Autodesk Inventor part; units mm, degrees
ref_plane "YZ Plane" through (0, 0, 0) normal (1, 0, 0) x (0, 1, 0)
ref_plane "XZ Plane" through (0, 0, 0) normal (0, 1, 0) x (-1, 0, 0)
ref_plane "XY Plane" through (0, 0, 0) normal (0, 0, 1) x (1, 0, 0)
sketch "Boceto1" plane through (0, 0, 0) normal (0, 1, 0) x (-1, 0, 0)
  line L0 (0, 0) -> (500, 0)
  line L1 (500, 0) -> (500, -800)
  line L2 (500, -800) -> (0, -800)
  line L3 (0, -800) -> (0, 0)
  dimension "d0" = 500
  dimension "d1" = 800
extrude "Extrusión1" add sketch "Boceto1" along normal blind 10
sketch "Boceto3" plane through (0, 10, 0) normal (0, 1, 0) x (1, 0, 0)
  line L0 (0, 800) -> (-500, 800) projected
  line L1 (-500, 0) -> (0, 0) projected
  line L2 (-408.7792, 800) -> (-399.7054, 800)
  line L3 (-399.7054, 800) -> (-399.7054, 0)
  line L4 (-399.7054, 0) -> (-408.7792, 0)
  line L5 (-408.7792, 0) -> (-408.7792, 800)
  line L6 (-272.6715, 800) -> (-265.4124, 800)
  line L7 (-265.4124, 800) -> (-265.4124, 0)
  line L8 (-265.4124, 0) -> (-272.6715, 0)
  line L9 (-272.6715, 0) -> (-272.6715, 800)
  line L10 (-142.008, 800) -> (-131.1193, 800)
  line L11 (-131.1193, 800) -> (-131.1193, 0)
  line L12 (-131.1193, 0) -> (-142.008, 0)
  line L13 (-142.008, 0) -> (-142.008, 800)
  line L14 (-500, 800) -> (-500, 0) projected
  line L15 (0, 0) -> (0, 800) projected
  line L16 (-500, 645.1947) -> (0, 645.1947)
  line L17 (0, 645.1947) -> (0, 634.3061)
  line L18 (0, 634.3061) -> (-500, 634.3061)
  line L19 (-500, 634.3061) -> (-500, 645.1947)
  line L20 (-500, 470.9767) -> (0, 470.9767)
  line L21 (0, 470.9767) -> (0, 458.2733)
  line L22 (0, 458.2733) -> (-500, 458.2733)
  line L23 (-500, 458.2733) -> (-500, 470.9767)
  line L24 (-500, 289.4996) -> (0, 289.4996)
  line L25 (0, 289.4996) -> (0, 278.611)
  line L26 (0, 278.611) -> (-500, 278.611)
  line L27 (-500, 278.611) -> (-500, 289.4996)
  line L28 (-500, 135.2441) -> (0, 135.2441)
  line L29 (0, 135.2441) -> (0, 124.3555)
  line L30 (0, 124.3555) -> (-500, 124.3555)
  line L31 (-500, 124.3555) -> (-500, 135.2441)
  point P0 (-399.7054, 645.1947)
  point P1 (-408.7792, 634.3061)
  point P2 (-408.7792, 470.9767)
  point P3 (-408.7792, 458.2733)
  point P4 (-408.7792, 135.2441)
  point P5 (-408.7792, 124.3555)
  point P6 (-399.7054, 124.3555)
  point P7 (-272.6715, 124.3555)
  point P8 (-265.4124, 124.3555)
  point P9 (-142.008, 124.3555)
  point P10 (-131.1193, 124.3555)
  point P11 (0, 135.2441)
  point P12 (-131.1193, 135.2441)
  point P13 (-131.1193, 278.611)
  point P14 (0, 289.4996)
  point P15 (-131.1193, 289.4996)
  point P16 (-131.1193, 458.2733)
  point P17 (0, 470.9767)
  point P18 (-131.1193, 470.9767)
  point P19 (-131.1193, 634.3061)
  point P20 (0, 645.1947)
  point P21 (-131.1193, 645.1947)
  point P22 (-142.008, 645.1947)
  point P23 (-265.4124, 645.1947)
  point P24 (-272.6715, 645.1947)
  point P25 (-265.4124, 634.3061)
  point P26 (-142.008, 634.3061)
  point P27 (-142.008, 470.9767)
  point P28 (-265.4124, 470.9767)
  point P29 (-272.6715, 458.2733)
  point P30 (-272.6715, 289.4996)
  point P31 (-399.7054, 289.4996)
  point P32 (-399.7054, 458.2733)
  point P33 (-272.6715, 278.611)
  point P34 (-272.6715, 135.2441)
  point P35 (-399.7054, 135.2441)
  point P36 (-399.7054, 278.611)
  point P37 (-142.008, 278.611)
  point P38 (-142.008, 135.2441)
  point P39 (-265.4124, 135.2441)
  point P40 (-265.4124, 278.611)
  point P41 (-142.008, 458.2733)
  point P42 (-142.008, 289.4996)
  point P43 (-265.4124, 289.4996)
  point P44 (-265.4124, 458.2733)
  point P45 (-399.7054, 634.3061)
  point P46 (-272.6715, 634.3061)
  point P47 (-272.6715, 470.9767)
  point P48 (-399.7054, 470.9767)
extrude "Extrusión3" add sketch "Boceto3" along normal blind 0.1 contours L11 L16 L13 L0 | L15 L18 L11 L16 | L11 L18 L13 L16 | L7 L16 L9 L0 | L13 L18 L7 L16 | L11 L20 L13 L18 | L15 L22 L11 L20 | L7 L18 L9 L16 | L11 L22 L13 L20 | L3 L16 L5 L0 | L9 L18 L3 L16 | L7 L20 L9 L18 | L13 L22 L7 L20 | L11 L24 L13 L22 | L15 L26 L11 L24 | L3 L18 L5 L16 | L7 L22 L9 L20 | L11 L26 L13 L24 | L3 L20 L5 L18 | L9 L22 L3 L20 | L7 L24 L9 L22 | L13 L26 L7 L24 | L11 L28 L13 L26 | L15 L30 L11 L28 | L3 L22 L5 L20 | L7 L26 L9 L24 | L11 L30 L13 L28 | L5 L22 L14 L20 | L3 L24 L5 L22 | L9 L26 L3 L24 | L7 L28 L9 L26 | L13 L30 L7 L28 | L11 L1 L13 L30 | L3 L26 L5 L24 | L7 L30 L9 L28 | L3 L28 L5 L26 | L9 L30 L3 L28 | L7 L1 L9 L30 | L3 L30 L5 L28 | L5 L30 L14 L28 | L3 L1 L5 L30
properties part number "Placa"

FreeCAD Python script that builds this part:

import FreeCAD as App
import Part
import Sketcher

V = App.Vector

doc = App.newDocument("Part")
body = doc.addObject("PartDesign::Body", "Body")

sketch1 = body.newObject("Sketcher::SketchObject", "Sketch")
sketch1.AttachmentSupport = (doc.getObject("XZ_Plane"), [""])
sketch1.MapMode = "FlatFace"
sketch1.addGeometry([
    Part.LineSegment(V(-500, 0, 0), V(0, 0, 0)),
    Part.LineSegment(V(0, 0, 0), V(0, -800, 0)),
    Part.LineSegment(V(0, -800, 0), V(-500, -800, 0)),
    Part.LineSegment(V(-500, -800, 0), V(-500, 0, 0)),
], False)
sketch1.addConstraint([
    Sketcher.Constraint("Coincident", 0, 2, 1, 1),
    Sketcher.Constraint("Coincident", 1, 2, 2, 1),
    Sketcher.Constraint("Coincident", 2, 2, 3, 1),
    Sketcher.Constraint("Coincident", 3, 2, 0, 1),
    Sketcher.Constraint("Horizontal", 0),
    Sketcher.Constraint("Vertical", 1),
    Sketcher.Constraint("Horizontal", 2),
    Sketcher.Constraint("Vertical", 3),
    Sketcher.Constraint("Coincident", 0, 2, -1, 1),
    Sketcher.Constraint("DistanceX", 0, 1, 0, 2, 500.0),
    Sketcher.Constraint("DistanceY", 1, 2, 1, 1, 800.0),
])
pad1 = body.newObject("PartDesign::Pad", "Pad")
pad1.Profile = sketch1
pad1.Length = 10
pad1.Reversed = True

sketch2 = body.newObject("Sketcher::SketchObject", "Sketch001")
sketch2.AttachmentSupport = (doc.getObject("XZ_Plane"), [""])
sketch2.MapMode = "FlatFace"
sketch2.AttachmentOffset = App.Placement(V(0, 0, -10), App.Rotation())
sketch2.addGeometry([
    Part.LineSegment(V(-131, -645, 0), V(-131, -800, 0)),
    Part.LineSegment(V(-131, -800, 0), V(-142, -800, 0)),
    Part.LineSegment(V(-142, -800, 0), V(-142, -645, 0)),
    Part.LineSegment(V(-142, -645, 0), V(-265, -645, 0)),
    Part.LineSegment(V(-265, -645, 0), V(-265, -800, 0)),
    Part.LineSegment(V(-265, -800, 0), V(-273, -800, 0)),
    Part.LineSegment(V(-273, -800, 0), V(-273, -645, 0)),
    Part.LineSegment(V(-273, -645, 0), V(-400, -645, 0)),
    Part.LineSegment(V(-400, -645, 0), V(-400, -800, 0)),
    Part.LineSegment(V(-400, -800, 0), V(-409, -800, 0)),
    Part.LineSegment(V(-409, -800, 0), V(-409, -471, 0)),
    Part.LineSegment(V(-409, -471, 0), V(-500, -471, 0)),
    Part.LineSegment(V(-500, -471, 0), V(-500, -458, 0)),
    Part.LineSegment(V(-500, -458, 0), V(-409, -458, 0)),
    Part.LineSegment(V(-409, -458, 0), V(-409, -135, 0)),
    Part.LineSegment(V(-409, -135, 0), V(-500, -135, 0)),
    Part.LineSegment(V(-500, -135, 0), V(-500, -124, 0)),
    Part.LineSegment(V(-500, -124, 0), V(-409, -124, 0)),
    Part.LineSegment(V(-409, -124, 0), V(-409, 0, 0)),
    Part.LineSegment(V(-409, 0, 0), V(-400, 0, 0)),
    Part.LineSegment(V(-400, 0, 0), V(-400, -124, 0)),
    Part.LineSegment(V(-400, -124, 0), V(-273, -124, 0)),
    Part.LineSegment(V(-273, -124, 0), V(-273, 0, 0)),
    Part.LineSegment(V(-273, 0, 0), V(-265, 0, 0)),
    Part.LineSegment(V(-265, 0, 0), V(-265, -124, 0)),
    Part.LineSegment(V(-265, -124, 0), V(-142, -124, 0)),
    Part.LineSegment(V(-142, -124, 0), V(-142, 0, 0)),
    Part.LineSegment(V(-142, 0, 0), V(-131, 0, 0)),
    Part.LineSegment(V(-131, 0, 0), V(-131, -124, 0)),
    Part.LineSegment(V(-131, -124, 0), V(0, -124, 0)),
    Part.LineSegment(V(0, -124, 0), V(0, -135, 0)),
    Part.LineSegment(V(0, -135, 0), V(-131, -135, 0)),
    Part.LineSegment(V(-131, -135, 0), V(-131, -279, 0)),
    Part.LineSegment(V(-131, -279, 0), V(0, -279, 0)),
    Part.LineSegment(V(0, -279, 0), V(0, -289, 0)),
    Part.LineSegment(V(0, -289, 0), V(-131, -289, 0)),
    Part.LineSegment(V(-131, -289, 0), V(-131, -458, 0)),
    Part.LineSegment(V(-131, -458, 0), V(0, -458, 0)),
    Part.LineSegment(V(0, -458, 0), V(0, -471, 0)),
    Part.LineSegment(V(0, -471, 0), V(-131, -471, 0)),
    Part.LineSegment(V(-131, -471, 0), V(-131, -634, 0)),
    Part.LineSegment(V(-131, -634, 0), V(0, -634, 0)),
    Part.LineSegment(V(0, -634, 0), V(0, -645, 0)),
    Part.LineSegment(V(0, -645, 0), V(-131, -645, 0)),
    Part.LineSegment(V(-142, -634, 0), V(-142, -471, 0)),
    Part.LineSegment(V(-142, -471, 0), V(-265, -471, 0)),
    Part.LineSegment(V(-265, -471, 0), V(-265, -634, 0)),
    Part.LineSegment(V(-265, -634, 0), V(-142, -634, 0)),
    Part.LineSegment(V(-142, -458, 0), V(-142, -289, 0)),
    Part.LineSegment(V(-142, -289, 0), V(-265, -289, 0)),
    Part.LineSegment(V(-265, -289, 0), V(-265, -458, 0)),
    Part.LineSegment(V(-265, -458, 0), V(-142, -458, 0)),
    Part.LineSegment(V(-273, -634, 0), V(-273, -471, 0)),
    Part.LineSegment(V(-273, -471, 0), V(-400, -471, 0)),
    Part.LineSegment(V(-400, -471, 0), V(-400, -634, 0)),
    Part.LineSegment(V(-400, -634, 0), V(-273, -634, 0)),
    Part.LineSegment(V(-142, -279, 0), V(-142, -135, 0)),
    Part.LineSegment(V(-142, -135, 0), V(-265, -135, 0)),
    Part.LineSegment(V(-265, -135, 0), V(-265, -279, 0)),
    Part.LineSegment(V(-265, -279, 0), V(-142, -279, 0)),
    Part.LineSegment(V(-400, -458, 0), V(-273, -458, 0)),
    Part.LineSegment(V(-273, -458, 0), V(-273, -289, 0)),
    Part.LineSegment(V(-273, -289, 0), V(-400, -289, 0)),
    Part.LineSegment(V(-400, -289, 0), V(-400, -458, 0)),
    Part.LineSegment(V(-400, -279, 0), V(-273, -279, 0)),
    Part.LineSegment(V(-273, -279, 0), V(-273, -135, 0)),
    Part.LineSegment(V(-273, -135, 0), V(-400, -135, 0)),
    Part.LineSegment(V(-400, -135, 0), V(-400, -279, 0)),
], False)
sketch2.addConstraint([
    Sketcher.Constraint("Coincident", 0, 2, 1, 1),
    Sketcher.Constraint("Coincident", 1, 2, 2, 1),
    Sketcher.Constraint("Coincident", 2, 2, 3, 1),
    Sketcher.Constraint("Coincident", 3, 2, 4, 1),
    Sketcher.Constraint("Coincident", 4, 2, 5, 1),
    Sketcher.Constraint("Coincident", 5, 2, 6, 1),
    Sketcher.Constraint("Coincident", 6, 2, 7, 1),
    Sketcher.Constraint("Coincident", 7, 2, 8, 1),
    Sketcher.Constraint("Coincident", 8, 2, 9, 1),
    Sketcher.Constraint("Coincident", 9, 2, 10, 1),
    Sketcher.Constraint("Coincident", 10, 2, 11, 1),
    Sketcher.Constraint("Coincident", 11, 2, 12, 1),
    Sketcher.Constraint("Coincident", 12, 2, 13, 1),
    Sketcher.Constraint("Coincident", 13, 2, 14, 1),
    Sketcher.Constraint("Coincident", 14, 2, 15, 1),
    Sketcher.Constraint("Coincident", 15, 2, 16, 1),
    Sketcher.Constraint("Coincident", 16, 2, 17, 1),
    Sketcher.Constraint("Coincident", 17, 2, 18, 1),
    Sketcher.Constraint("Coincident", 18, 2, 19, 1),
    Sketcher.Constraint("Coincident", 19, 2, 20, 1),
    Sketcher.Constraint("Coincident", 20, 2, 21, 1),
    Sketcher.Constraint("Coincident", 21, 2, 22, 1),
    Sketcher.Constraint("Coincident", 22, 2, 23, 1),
    Sketcher.Constraint("Coincident", 23, 2, 24, 1),
    Sketcher.Constraint("Coincident", 24, 2, 25, 1),
    Sketcher.Constraint("Coincident", 25, 2, 26, 1),
    Sketcher.Constraint("Coincident", 26, 2, 27, 1),
    Sketcher.Constraint("Coincident", 27, 2, 28, 1),
    Sketcher.Constraint("Coincident", 28, 2, 29, 1),
    Sketcher.Constraint("Coincident", 29, 2, 30, 1),
    Sketcher.Constraint("Coincident", 30, 2, 31, 1),
    Sketcher.Constraint("Coincident", 31, 2, 32, 1),
    Sketcher.Constraint("Coincident", 32, 2, 33, 1),
    Sketcher.Constraint("Coincident", 33, 2, 34, 1),
    Sketcher.Constraint("Coincident", 34, 2, 35, 1),
    Sketcher.Constraint("Coincident", 35, 2, 36, 1),
    Sketcher.Constraint("Coincident", 36, 2, 37, 1),
    Sketcher.Constraint("Coincident", 37, 2, 38, 1),
    Sketcher.Constraint("Coincident", 38, 2, 39, 1),
    Sketcher.Constraint("Coincident", 39, 2, 40, 1),
    Sketcher.Constraint("Coincident", 40, 2, 41, 1),
    Sketcher.Constraint("Coincident", 41, 2, 42, 1),
    Sketcher.Constraint("Coincident", 42, 2, 43, 1),
    Sketcher.Constraint("Coincident", 43, 2, 0, 1),
    Sketcher.Constraint("Coincident", 44, 2, 45, 1),
    Sketcher.Constraint("Coincident", 45, 2, 46, 1),
    Sketcher.Constraint("Coincident", 46, 2, 47, 1),
    Sketcher.Constraint("Coincident", 47, 2, 44, 1),
    Sketcher.Constraint("Coincident", 48, 2, 49, 1),
    Sketcher.Constraint("Coincident", 49, 2, 50, 1),
    Sketcher.Constraint("Coincident", 50, 2, 51, 1),
    Sketcher.Constraint("Coincident", 51, 2, 48, 1),
    Sketcher.Constraint("Coincident", 52, 2, 53, 1),
    Sketcher.Constraint("Coincident", 53, 2, 54, 1),
    Sketcher.Constraint("Coincident", 54, 2, 55, 1),
    Sketcher.Constraint("Coincident", 55, 2, 52, 1),
    Sketcher.Constraint("Coincident", 56, 2, 57, 1),
    Sketcher.Constraint("Coincident", 57, 2, 58, 1),
    Sketcher.Constraint("Coincident", 58, 2, 59, 1),
    Sketcher.Constraint("Coincident", 59, 2, 56, 1),
    Sketcher.Constraint("Coincident", 60, 2, 61, 1),
    Sketcher.Constraint("Coincident", 61, 2, 62, 1),
    Sketcher.Constraint("Coincident", 62, 2, 63, 1),
    Sketcher.Constraint("Coincident", 63, 2, 60, 1),
    Sketcher.Constraint("Coincident", 64, 2, 65, 1),
    Sketcher.Constraint("Coincident", 65, 2, 66, 1),
    Sketcher.Constraint("Coincident", 66, 2, 67, 1),
    Sketcher.Constraint("Coincident", 67, 2, 64, 1),
    Sketcher.Constraint("Vertical", 0),
    Sketcher.Constraint("Horizontal", 1),
    Sketcher.Constraint("Vertical", 2),
    Sketcher.Constraint("Horizontal", 3),
    Sketcher.Constraint("Vertical", 4),
    Sketcher.Constraint("Horizontal", 5),
    Sketcher.Constraint("Vertical", 6),
    Sketcher.Constraint("Horizontal", 7),
    Sketcher.Constraint("Vertical", 8),
    Sketcher.Constraint("Horizontal", 9),
    Sketcher.Constraint("Vertical", 10),
    Sketcher.Constraint("Horizontal", 11),
    Sketcher.Constraint("Vertical", 12),
    Sketcher.Constraint("Horizontal", 13),
    Sketcher.Constraint("Vertical", 14),
    Sketcher.Constraint("Horizontal", 15),
    Sketcher.Constraint("Vertical", 16),
    Sketcher.Constraint("Horizontal", 17),
    Sketcher.Constraint("Vertical", 18),
    Sketcher.Constraint("Horizontal", 19),
    Sketcher.Constraint("Vertical", 20),
    Sketcher.Constraint("Horizontal", 21),
    Sketcher.Constraint("Vertical", 22),
    Sketcher.Constraint("Horizontal", 23),
    Sketcher.Constraint("Vertical", 24),
    Sketcher.Constraint("Horizontal", 25),
    Sketcher.Constraint("Vertical", 26),
    Sketcher.Constraint("Horizontal", 27),
    Sketcher.Constraint("Vertical", 28),
    Sketcher.Constraint("Horizontal", 29),
    Sketcher.Constraint("Vertical", 30),
    Sketcher.Constraint("Horizontal", 31),
    Sketcher.Constraint("Vertical", 32),
    Sketcher.Constraint("Horizontal", 33),
    Sketcher.Constraint("Vertical", 34),
    Sketcher.Constraint("Horizontal", 35),
    Sketcher.Constraint("Vertical", 36),
    Sketcher.Constraint("Horizontal", 37),
    Sketcher.Constraint("Vertical", 38),
    Sketcher.Constraint("Horizontal", 39),
    Sketcher.Constraint("Vertical", 40),
    Sketcher.Constraint("Horizontal", 41),
    Sketcher.Constraint("Vertical", 42),
    Sketcher.Constraint("Horizontal", 43),
    Sketcher.Constraint("Vertical", 44),
    Sketcher.Constraint("Horizontal", 45),
    Sketcher.Constraint("Vertical", 46),
    Sketcher.Constraint("Horizontal", 47),
    Sketcher.Constraint("Vertical", 48),
    Sketcher.Constraint("Horizontal", 49),
    Sketcher.Constraint("Vertical", 50),
    Sketcher.Constraint("Horizontal", 51),
    Sketcher.Constraint("Vertical", 52),
    Sketcher.Constraint("Horizontal", 53),
    Sketcher.Constraint("Vertical", 54),
    Sketcher.Constraint("Horizontal", 55),
    Sketcher.Constraint("Vertical", 56),
    Sketcher.Constraint("Horizontal", 57),
    Sketcher.Constraint("Vertical", 58),
    Sketcher.Constraint("Horizontal", 59),
    Sketcher.Constraint("Horizontal", 60),
    Sketcher.Constraint("Vertical", 61),
    Sketcher.Constraint("Horizontal", 62),
    Sketcher.Constraint("Vertical", 63),
    Sketcher.Constraint("Horizontal", 64),
    Sketcher.Constraint("Vertical", 65),
    Sketcher.Constraint("Horizontal", 66),
    Sketcher.Constraint("Vertical", 67),
    Sketcher.Constraint("PointOnObject", 18, 2, -1),
    Sketcher.Constraint("PointOnObject", 22, 2, -1),
    Sketcher.Constraint("PointOnObject", 26, 2, -1),
    Sketcher.Constraint("PointOnObject", 29, 2, -2),
    Sketcher.Constraint("PointOnObject", 33, 2, -2),
    Sketcher.Constraint("PointOnObject", 37, 2, -2),
    Sketcher.Constraint("PointOnObject", 41, 2, -2),
    Sketcher.Constraint("Horizontal", 1, 2, 4, 2),
    Sketcher.Constraint("Horizontal", 3, 2, 6, 2),
    Sketcher.Constraint("Horizontal", 5, 2, 8, 2),
    Sketcher.Constraint("Horizontal", 17, 2, 20, 2),
    Sketcher.Constraint("Horizontal", 21, 2, 24, 2),
    Sketcher.Constraint("Horizontal", 25, 2, 28, 2),
    Sketcher.Constraint("Horizontal", 15, 2, 30, 2),
    Sketcher.Constraint("Horizontal", 13, 2, 36, 2),
    Sketcher.Constraint("Horizontal", 11, 2, 38, 2),
    Sketcher.Constraint("Horizontal", 7, 2, 42, 2),
    Sketcher.Constraint("Horizontal", 39, 2, 44, 2),
    Sketcher.Constraint("Horizontal", 41, 2, 46, 2),
    Sketcher.Constraint("Horizontal", 35, 2, 48, 2),
    Sketcher.Constraint("Horizontal", 37, 2, 50, 2),
    Sketcher.Constraint("Horizontal", 45, 2, 52, 2),
    Sketcher.Constraint("Horizontal", 47, 2, 54, 2),
    Sketcher.Constraint("Horizontal", 31, 2, 56, 2),
    Sketcher.Constraint("Horizontal", 33, 2, 58, 2),
    Sketcher.Constraint("Horizontal", 51, 2, 60, 2),
    Sketcher.Constraint("Horizontal", 49, 2, 61, 2),
    Sketcher.Constraint("Horizontal", 59, 2, 64, 2),
    Sketcher.Constraint("Horizontal", 57, 2, 65, 2),
    Sketcher.Constraint("Vertical", 10, 2, 13, 2),
    Sketcher.Constraint("Vertical", 12, 2, 15, 2),
    Sketcher.Constraint("Vertical", 14, 2, 17, 2),
    Sketcher.Constraint("Vertical", 8, 2, 19, 2),
    Sketcher.Constraint("Vertical", 6, 2, 21, 2),
    Sketcher.Constraint("Vertical", 4, 2, 23, 2),
    Sketcher.Constraint("Vertical", 2, 2, 25, 2),
    Sketcher.Constraint("Vertical", 0, 2, 27, 2),
    Sketcher.Constraint("Vertical", 28, 2, 31, 2),
    Sketcher.Constraint("Vertical", 32, 2, 35, 2),
    Sketcher.Constraint("Vertical", 36, 2, 39, 2),
    Sketcher.Constraint("Vertical", 26, 2, 44, 2),
    Sketcher.Constraint("Vertical", 24, 2, 45, 2),
    Sketcher.Constraint("Vertical", 47, 2, 48, 2),
    Sketcher.Constraint("Vertical", 46, 2, 49, 2),
    Sketcher.Constraint("Vertical", 22, 2, 52, 2),
    Sketcher.Constraint("Vertical", 20, 2, 53, 2),
    Sketcher.Constraint("Vertical", 51, 2, 56, 2),
    Sketcher.Constraint("Vertical", 50, 2, 57, 2),
    Sketcher.Constraint("Vertical", 55, 2, 60, 2),
    Sketcher.Constraint("Vertical", 54, 2, 62, 2),
    Sketcher.Constraint("Vertical", 61, 2, 64, 2),
    Sketcher.Constraint("Vertical", 63, 2, 66, 2),
    Sketcher.Constraint("Equal", 27, 16),
    Sketcher.Constraint("Equal", 30, 34),
    Sketcher.Constraint("Equal", 34, 42),
    Sketcher.Constraint("DistanceY", 0, 2, -1, 1, 800.0),
    Sketcher.Constraint("DistanceX", 11, 2, -1, 1, 500.0),
    Sketcher.Constraint("DistanceX", 5, 2, 5, 1, 7.259),
    Sketcher.Constraint("DistanceX", 7, 2, 7, 1, 127.034),
    Sketcher.Constraint("DistanceY", 32, 2, 32, 1, 143.367),
    Sketcher.Constraint("DistanceX", 1, 2, 1, 1, 10.8887),
    Sketcher.Constraint("DistanceX", 3, 2, 3, 1, 123.4044),
    Sketcher.Constraint("DistanceX", 9, 2, 9, 1, 9.0738),
    Sketcher.Constraint("DistanceX", 11, 2, 11, 1, 91.2208),
    Sketcher.Constraint("DistanceY", 0, 2, 0, 1, 154.8053),
    Sketcher.Constraint("DistanceY", 10, 1, 10, 2, 329.0233),
    Sketcher.Constraint("DistanceY", 12, 1, 12, 2, 12.7034),
    Sketcher.Constraint("DistanceY", 14, 1, 14, 2, 323.0292),
])
pad2 = body.newObject("PartDesign::Pad", "Pad001")
pad2.Profile = sketch2
pad2.Length = 0.1
pad2.Reversed = True

doc.recompute()
